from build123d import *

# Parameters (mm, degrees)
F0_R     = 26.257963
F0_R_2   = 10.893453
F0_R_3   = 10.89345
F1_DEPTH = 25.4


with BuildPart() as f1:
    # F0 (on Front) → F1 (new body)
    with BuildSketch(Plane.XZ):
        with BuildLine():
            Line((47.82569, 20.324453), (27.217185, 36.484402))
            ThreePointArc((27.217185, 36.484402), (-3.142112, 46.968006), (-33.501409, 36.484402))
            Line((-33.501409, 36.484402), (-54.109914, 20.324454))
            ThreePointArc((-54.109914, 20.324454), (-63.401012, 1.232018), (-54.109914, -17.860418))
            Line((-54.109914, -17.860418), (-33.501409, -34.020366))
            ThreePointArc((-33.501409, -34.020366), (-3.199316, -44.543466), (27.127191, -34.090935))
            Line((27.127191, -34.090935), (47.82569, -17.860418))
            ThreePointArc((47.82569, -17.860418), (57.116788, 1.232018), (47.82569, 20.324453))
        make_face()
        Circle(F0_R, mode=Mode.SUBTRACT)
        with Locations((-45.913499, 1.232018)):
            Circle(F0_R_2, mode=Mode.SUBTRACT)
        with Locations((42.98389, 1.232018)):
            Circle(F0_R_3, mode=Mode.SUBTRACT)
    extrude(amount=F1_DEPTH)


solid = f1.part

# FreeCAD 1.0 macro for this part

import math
import FreeCAD as App
import Part
import Sketcher

V = App.Vector
Q = App.Units.Quantity

doc = App.newDocument("Part")
body = doc.addObject("PartDesign::Body", "Body")

# Sketch on XZ plane
sketch1 = body.newObject("Sketcher::SketchObject", "Sketch")
sketch1.AttachmentSupport = (doc.getObject("XZ_Plane"), [""])
sketch1.MapMode = "FlatFace"
sketch1.addGeometry([
    Part.LineSegment(V(48, 20, 0), V(27, 36, 0)),  # 0
    Part.ArcOfCircle(Part.Circle(V(-3, -2, 0), V(0, 0, 1), 49), math.radians(52), math.radians(128)),  # 1
    Part.LineSegment(V(-34, 36, 0), V(-54, 20, 0)),  # 2
    Part.ArcOfCircle(Part.Circle(V(-39, 1, 0), V(0, 0, 1), 24), math.radians(128), math.radians(232)),  # 3
    Part.LineSegment(V(-54, -18, 0), V(-34, -34, 0)),  # 4
    Part.ArcOfCircle(Part.Circle(V(-3, 5, 0), V(0, 0, 1), 49), math.radians(-128), math.radians(-52)),  # 5
    Part.LineSegment(V(27, -34, 0), V(48, -18, 0)),  # 6
    Part.ArcOfCircle(Part.Circle(V(33, 1, 0), V(0, 0, 1), 24), math.radians(-52), math.radians(52)),  # 7
    Part.Circle(V(-46, 1, 0), V(0, 0, 1), 11),  # 8
    Part.Circle(V(0, 0, 0), V(0, 0, 1), 26),  # 9
    Part.Circle(V(43, 1, 0), V(0, 0, 1), 11),  # 10
], False)
sketch1.addConstraint([
    Sketcher.Constraint("Tangent", 0, 2, 1, 1),
    Sketcher.Constraint("Tangent", 1, 2, 2, 1),
    Sketcher.Constraint("Tangent", 2, 2, 3, 1),
    Sketcher.Constraint("Tangent", 3, 2, 4, 1),
    Sketcher.Constraint("Coincident", 4, 2, 5, 1),
    Sketcher.Constraint("Tangent", 5, 2, 6, 1),
    Sketcher.Constraint("Tangent", 6, 2, 7, 1),
    Sketcher.Constraint("Tangent", 7, 2, 0, 1),
    Sketcher.Constraint("Coincident", 9, 3, -1, 1),
    Sketcher.Constraint("Equal", 3, 7),
    Sketcher.Constraint("Parallel", 0, 4),
    Sketcher.Constraint("Parallel", 2, 6),
    Sketcher.Constraint("Horizontal", 3, 3, 7, 3),
    Sketcher.Constraint("Horizontal", 7, 3, 8, 3),
    Sketcher.Constraint("Horizontal", 8, 3, 10, 3),
    Sketcher.Constraint("Horizontal", 0, 2, 1, 2),
    Sketcher.Constraint("Vertical", 1, 2, 4, 2),
    Sketcher.Constraint("Diameter", 10, 21.7869),
    Sketcher.Constraint("Diameter", 8, 21.786906),
    Sketcher.Constraint("Diameter", 9, 52.515926),
    Sketcher.Constraint("Radius", 1, 49.200297),
    Sketcher.Constraint("Radius", 3, 24.262235),
    Sketcher.Constraint("Radius", 5, 49.054627),
    Sketcher.Constraint("DistanceX", 8, 3, -1, 1, 45.913499),
    Sketcher.Constraint("DistanceX", 3, 2, 1, 3, 50.967802),
    Sketcher.Constraint("DistanceX", 5, 2, 10, 3, 15.856699),
    Sketcher.Constraint("DistanceX", 10, 3, 6, 2, 4.8418),
    Sketcher.Constraint("DistanceX", 1, 3, -1, 1, 3.142112),
    Sketcher.Constraint("DistanceY", 1, 3, -1, 1, 2.232291),
])
pad1 = body.newObject("PartDesign::Pad", "Pad")
pad1.Profile = sketch1
pad1.Length = Q("1 in")

doc.recompute()
